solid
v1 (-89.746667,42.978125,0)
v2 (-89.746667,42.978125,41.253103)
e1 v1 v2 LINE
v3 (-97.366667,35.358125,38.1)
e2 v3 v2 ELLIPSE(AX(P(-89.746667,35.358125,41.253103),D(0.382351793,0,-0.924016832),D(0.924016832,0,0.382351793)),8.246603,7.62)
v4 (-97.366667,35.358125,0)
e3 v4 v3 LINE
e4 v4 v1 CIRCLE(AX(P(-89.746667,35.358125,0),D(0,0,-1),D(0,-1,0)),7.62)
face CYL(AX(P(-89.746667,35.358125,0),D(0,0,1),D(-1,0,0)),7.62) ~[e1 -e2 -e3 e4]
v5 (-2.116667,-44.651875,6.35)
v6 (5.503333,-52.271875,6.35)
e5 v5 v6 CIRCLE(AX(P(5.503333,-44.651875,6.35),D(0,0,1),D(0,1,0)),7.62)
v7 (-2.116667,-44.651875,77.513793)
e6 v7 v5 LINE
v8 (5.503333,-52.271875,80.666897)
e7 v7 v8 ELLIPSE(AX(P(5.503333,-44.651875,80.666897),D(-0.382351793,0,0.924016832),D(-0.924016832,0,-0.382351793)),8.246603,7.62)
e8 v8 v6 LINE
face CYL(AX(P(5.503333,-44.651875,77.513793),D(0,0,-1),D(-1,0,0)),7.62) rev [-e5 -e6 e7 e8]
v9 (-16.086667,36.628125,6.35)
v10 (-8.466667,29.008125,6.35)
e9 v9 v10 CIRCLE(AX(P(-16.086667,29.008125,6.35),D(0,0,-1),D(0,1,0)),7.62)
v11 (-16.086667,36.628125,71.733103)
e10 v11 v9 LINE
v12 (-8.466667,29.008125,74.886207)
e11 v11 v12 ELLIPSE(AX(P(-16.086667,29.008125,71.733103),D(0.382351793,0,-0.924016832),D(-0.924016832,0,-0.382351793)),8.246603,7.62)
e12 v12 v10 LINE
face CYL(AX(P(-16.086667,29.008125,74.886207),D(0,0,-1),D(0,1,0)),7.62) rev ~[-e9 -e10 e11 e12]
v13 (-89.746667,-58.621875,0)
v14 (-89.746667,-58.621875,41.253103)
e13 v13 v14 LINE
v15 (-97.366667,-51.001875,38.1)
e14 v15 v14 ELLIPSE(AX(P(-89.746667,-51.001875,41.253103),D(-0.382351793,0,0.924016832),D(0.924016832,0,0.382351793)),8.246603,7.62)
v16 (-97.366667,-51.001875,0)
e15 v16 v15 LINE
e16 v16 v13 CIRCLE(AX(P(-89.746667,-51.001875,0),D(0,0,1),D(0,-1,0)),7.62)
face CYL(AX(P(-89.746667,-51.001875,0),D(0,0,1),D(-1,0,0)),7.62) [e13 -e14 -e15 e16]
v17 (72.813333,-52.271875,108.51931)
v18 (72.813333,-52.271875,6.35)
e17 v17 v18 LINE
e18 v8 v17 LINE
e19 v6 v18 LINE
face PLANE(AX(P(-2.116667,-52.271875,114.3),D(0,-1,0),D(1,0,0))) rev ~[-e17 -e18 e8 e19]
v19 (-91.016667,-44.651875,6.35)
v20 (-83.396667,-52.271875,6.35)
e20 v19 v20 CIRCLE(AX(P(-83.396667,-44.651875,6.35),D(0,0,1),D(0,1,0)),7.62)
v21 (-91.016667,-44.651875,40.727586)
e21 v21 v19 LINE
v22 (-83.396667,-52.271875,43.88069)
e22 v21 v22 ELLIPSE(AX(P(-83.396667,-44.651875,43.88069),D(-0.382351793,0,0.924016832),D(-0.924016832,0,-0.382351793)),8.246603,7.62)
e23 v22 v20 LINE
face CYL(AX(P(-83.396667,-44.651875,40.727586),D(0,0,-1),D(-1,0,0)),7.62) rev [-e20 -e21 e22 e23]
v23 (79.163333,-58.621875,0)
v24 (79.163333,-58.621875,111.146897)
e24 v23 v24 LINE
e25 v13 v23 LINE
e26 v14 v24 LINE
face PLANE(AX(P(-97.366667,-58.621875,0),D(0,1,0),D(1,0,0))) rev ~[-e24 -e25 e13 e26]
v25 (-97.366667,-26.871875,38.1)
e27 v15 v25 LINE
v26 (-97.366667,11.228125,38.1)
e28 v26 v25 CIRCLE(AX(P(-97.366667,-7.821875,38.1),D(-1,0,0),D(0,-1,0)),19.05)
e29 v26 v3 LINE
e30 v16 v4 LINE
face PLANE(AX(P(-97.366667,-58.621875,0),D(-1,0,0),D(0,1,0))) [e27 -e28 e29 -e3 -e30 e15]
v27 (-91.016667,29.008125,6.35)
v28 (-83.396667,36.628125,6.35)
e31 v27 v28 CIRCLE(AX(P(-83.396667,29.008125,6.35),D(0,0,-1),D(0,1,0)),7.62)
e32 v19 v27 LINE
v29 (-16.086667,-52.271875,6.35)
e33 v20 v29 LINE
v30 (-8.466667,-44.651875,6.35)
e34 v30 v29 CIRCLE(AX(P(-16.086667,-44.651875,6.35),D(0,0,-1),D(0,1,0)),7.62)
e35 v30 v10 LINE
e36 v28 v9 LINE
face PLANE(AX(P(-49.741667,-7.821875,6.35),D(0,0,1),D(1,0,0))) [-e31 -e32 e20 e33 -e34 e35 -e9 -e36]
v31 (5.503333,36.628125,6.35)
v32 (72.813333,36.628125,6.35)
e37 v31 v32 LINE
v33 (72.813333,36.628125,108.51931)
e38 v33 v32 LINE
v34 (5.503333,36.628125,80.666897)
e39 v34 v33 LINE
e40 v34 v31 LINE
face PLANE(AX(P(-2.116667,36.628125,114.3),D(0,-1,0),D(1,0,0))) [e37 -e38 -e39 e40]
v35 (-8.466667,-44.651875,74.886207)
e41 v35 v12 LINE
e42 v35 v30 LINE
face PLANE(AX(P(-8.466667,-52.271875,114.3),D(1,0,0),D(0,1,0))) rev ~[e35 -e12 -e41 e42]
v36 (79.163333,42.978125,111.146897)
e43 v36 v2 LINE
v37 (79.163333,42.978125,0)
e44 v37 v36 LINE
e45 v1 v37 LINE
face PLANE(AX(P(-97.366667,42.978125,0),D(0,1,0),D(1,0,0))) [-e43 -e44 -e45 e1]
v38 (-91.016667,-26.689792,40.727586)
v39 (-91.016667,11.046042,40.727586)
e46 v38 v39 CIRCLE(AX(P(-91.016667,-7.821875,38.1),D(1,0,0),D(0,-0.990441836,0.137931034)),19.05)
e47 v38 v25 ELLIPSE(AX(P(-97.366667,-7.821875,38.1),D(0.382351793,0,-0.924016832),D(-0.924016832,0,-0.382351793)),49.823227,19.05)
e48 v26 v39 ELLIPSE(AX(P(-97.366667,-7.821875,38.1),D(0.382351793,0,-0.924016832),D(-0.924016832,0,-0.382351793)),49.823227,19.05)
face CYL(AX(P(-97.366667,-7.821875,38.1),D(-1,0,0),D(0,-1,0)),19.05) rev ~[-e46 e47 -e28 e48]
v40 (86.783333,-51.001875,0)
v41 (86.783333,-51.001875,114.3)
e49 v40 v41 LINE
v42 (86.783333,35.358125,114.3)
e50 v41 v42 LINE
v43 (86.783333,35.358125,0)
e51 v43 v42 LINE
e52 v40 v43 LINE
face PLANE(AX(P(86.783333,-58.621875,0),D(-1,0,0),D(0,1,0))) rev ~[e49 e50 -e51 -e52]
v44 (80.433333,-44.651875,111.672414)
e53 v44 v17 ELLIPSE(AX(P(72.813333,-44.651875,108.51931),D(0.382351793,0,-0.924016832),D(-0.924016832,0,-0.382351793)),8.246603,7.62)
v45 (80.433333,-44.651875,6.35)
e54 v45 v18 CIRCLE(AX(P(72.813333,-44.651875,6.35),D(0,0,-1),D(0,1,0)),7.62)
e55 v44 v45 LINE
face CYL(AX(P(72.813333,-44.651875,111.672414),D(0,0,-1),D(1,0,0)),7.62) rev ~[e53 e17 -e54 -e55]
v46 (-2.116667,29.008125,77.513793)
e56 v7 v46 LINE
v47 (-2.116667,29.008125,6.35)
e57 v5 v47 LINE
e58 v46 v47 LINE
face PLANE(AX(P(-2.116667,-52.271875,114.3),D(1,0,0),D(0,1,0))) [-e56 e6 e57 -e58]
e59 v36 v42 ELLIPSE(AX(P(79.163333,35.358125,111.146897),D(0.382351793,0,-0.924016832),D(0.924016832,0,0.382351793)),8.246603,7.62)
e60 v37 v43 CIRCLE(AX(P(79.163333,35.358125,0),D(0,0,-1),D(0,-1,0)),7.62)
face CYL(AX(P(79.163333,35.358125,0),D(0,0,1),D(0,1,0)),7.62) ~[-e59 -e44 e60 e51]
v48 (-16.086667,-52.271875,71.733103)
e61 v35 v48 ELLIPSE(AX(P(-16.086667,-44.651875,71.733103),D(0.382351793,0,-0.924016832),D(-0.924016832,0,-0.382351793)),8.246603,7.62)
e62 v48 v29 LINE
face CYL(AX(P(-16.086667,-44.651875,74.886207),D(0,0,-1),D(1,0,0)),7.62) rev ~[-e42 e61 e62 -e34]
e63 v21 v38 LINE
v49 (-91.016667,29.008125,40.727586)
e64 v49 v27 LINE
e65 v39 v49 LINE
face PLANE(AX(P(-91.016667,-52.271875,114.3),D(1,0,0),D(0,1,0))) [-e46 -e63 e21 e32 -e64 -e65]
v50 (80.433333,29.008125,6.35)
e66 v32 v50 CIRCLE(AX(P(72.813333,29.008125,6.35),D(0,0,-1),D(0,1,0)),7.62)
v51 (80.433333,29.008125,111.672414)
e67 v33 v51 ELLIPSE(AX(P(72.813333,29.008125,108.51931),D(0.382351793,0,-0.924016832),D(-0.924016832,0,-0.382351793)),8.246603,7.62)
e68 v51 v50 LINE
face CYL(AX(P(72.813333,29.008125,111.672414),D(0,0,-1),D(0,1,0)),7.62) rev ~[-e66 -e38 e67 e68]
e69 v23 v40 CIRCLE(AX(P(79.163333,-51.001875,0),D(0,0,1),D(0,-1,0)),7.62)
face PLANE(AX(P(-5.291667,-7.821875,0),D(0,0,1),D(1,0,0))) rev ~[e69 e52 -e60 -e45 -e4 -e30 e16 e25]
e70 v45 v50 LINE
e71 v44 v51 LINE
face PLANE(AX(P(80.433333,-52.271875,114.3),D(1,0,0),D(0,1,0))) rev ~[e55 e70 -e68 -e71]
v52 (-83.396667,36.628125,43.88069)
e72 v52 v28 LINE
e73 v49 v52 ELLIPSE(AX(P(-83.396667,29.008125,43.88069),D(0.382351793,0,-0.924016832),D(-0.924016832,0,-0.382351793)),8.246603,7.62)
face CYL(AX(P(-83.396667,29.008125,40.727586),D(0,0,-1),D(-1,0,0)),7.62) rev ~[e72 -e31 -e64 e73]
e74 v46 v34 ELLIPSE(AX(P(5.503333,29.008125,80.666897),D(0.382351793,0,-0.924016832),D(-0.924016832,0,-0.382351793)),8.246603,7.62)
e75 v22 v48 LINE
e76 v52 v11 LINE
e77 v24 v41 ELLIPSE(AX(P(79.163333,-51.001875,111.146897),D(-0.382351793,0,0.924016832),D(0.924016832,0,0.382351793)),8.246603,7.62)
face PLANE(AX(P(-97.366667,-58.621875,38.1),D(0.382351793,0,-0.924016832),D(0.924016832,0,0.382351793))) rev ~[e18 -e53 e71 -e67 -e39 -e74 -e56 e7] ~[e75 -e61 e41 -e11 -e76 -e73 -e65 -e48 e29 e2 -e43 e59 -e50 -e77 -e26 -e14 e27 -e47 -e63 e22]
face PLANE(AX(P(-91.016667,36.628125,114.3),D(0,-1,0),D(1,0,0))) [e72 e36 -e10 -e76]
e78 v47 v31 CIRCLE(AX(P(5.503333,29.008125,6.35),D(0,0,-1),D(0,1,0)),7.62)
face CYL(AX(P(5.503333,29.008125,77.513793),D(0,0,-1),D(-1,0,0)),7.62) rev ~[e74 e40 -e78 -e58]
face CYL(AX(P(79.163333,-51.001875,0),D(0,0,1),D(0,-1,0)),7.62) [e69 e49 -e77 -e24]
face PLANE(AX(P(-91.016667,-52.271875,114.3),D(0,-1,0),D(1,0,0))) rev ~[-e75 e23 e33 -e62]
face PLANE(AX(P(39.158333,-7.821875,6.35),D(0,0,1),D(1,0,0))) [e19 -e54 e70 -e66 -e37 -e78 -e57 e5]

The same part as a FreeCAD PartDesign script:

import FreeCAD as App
import Part
import Sketcher

V = App.Vector
Q = App.Units.Quantity


def edges_at(feature, points):
    """Names of the edges that pass closest to the given points."""
    edges = feature.Shape.Edges
    near = lambda p: min(range(len(edges)), key=lambda i: edges[i].distToShape(Part.Vertex(*p))[0])
    return sorted({f"Edge{near(p) + 1}" for p in points})

doc = App.newDocument("Part")
body = doc.addObject("PartDesign::Body", "Body")

# Sketch on XY plane
sketch1 = body.newObject("Sketcher::SketchObject", "Sketch")
sketch1.AttachmentSupport = (doc.getObject("XY_Plane"), [""])
sketch1.MapMode = "FlatFace"
sketch1.addGeometry(Part.LineSegment(V(-97, 43, 0), V(-97, -59, 0)), False)
sketch1.addGeometry(Part.LineSegment(V(-97, -59, 0), V(87, -59, 0)), False)
sketch1.addGeometry(Part.LineSegment(V(87, -59, 0), V(87, 43, 0)), False)
sketch1.addGeometry(Part.LineSegment(V(87, 43, 0), V(-97, 43, 0)), False)
sketch1.addConstraint(Sketcher.Constraint("Coincident", 0, 2, 1, 1))
sketch1.addConstraint(Sketcher.Constraint("Coincident", 1, 2, 2, 1))
sketch1.addConstraint(Sketcher.Constraint("Coincident", 2, 2, 3, 1))
sketch1.addConstraint(Sketcher.Constraint("Coincident", 3, 2, 0, 1))
sketch1.addConstraint(Sketcher.Constraint("Vertical", 0))
sketch1.addConstraint(Sketcher.Constraint("Horizontal", 1))
sketch1.addConstraint(Sketcher.Constraint("Vertical", 2))
sketch1.addConstraint(Sketcher.Constraint("Horizontal", 3))
sketch1.addConstraint(Sketcher.Constraint("DistanceY", 0, 2, 0, 1, Q("4 in")))
sketch1.addConstraint(Sketcher.Constraint("DistanceX", 1, 1, 1, 2, Q("7.25 in")))
sketch1.addConstraint(Sketcher.Constraint("DistanceX", 0, 2, -1, 1, Q("97.366667 mm")))
sketch1.addConstraint(Sketcher.Constraint("DistanceY", 0, 2, -1, 1, Q("58.621875 mm")))
pad1 = body.newObject("PartDesign::Pad", "Pad")
pad1.Profile = sketch1
pad1.Length = Q("4.5 in")

# Sketch on XY plane
sketch2 = body.newObject("Sketcher::SketchObject", "Sketch001")
sketch2.AttachmentSupport = (doc.getObject("XY_Plane"), [""])
sketch2.MapMode = "FlatFace"
sketch2.AttachmentOffset = App.Placement(V(0, 0, 4.5 * 25.4), App.Rotation())
sketch2.addGeometry(Part.LineSegment(V(-91, 37, 0), V(-91, -52, 0)), False)
sketch2.addGeometry(Part.LineSegment(V(-91, -52, 0), V(-8, -52, 0)), False)
sketch2.addGeometry(Part.LineSegment(V(-8, -52, 0), V(-8, 37, 0)), False)
sketch2.addGeometry(Part.LineSegment(V(-8, 37, 0), V(-91, 37, 0)), False)
sketch2.addGeometry(Part.LineSegment(V(-2, 37, 0), V(-2, -52, 0)), False)
sketch2.addGeometry(Part.LineSegment(V(-2, -52, 0), V(80, -52, 0)), False)
sketch2.addGeometry(Part.LineSegment(V(80, -52, 0), V(80, 37, 0)), False)
sketch2.addGeometry(Part.LineSegment(V(80, 37, 0), V(-2, 37, 0)), False)
sketch2.addConstraint(Sketcher.Constraint("Coincident", 0, 2, 1, 1))
sketch2.addConstraint(Sketcher.Constraint("Coincident", 1, 2, 2, 1))
sketch2.addConstraint(Sketcher.Constraint("Coincident", 2, 2, 3, 1))
sketch2.addConstraint(Sketcher.Constraint("Coincident", 3, 2, 0, 1))
sketch2.addConstraint(Sketcher.Constraint("Coincident", 4, 2, 5, 1))
sketch2.addConstraint(Sketcher.Constraint("Coincident", 5, 2, 6, 1))
sketch2.addConstraint(Sketcher.Constraint("Coincident", 6, 2, 7, 1))
sketch2.addConstraint(Sketcher.Constraint("Coincident", 7, 2, 4, 1))
sketch2.addConstraint(Sketcher.Constraint("Vertical", 0))
sketch2.addConstraint(Sketcher.Constraint("Horizontal", 1))
sketch2.addConstraint(Sketcher.Constraint("Vertical", 2))
sketch2.addConstraint(Sketcher.Constraint("Horizontal", 3))
sketch2.addConstraint(Sketcher.Constraint("Vertical", 4))
sketch2.addConstraint(Sketcher.Constraint("Horizontal", 5))
sketch2.addConstraint(Sketcher.Constraint("Vertical", 6))
sketch2.addConstraint(Sketcher.Constraint("Horizontal", 7))
sketch2.addConstraint(Sketcher.Constraint("Horizontal", 1, 2, 4, 2))
sketch2.addConstraint(Sketcher.Constraint("Horizontal", 3, 2, 6, 2))
sketch2.addConstraint(Sketcher.Constraint("Equal", 3, 5))
sketch2.addConstraint(Sketcher.Constraint("DistanceY", 0, 2, 0, 1, Q("3.5 in")))
sketch2.addConstraint(Sketcher.Constraint("DistanceX", 1, 1, 1, 2, Q("3.25 in")))
sketch2.addConstraint(Sketcher.Constraint("DistanceX", 0, 2, 4, 2, Q("3.5 in")))
sketch2.addConstraint(Sketcher.Constraint("DistanceX", 0, 2, -1, 1, Q("91.016667 mm")))
sketch2.addConstraint(Sketcher.Constraint("DistanceY", 0, 2, -1, 1, Q("52.271875 mm")))
pocket1 = body.newObject("PartDesign::Pocket", "Pocket")
pocket1.Profile = sketch2
pocket1.Length = Q("4.25 in")

# Sketch on XZ plane
sketch3 = body.newObject("Sketcher::SketchObject", "Sketch002")
sketch3.AttachmentSupport = (doc.getObject("XZ_Plane"), [""])
sketch3.MapMode = "FlatFace"
sketch3.AttachmentOffset = App.Placement(V(0, 0, 58.621875), App.Rotation())
sketch3.addGeometry(Part.LineSegment(V(-97, 114, 0), V(-97, 38, 0)), False)
sketch3.addGeometry(Part.LineSegment(V(-97, 38, 0), V(87, 114, 0)), False)
sketch3.addGeometry(Part.LineSegment(V(87, 114, 0), V(-97, 114, 0)), False)
sketch3.addConstraint(Sketcher.Constraint("Coincident", 0, 2, 1, 1))
sketch3.addConstraint(Sketcher.Constraint("Coincident", 1, 2, 2, 1))
sketch3.addConstraint(Sketcher.Constraint("Coincident", 2, 2, 0, 1))
sketch3.addConstraint(Sketcher.Constraint("Vertical", 0))
sketch3.addConstraint(Sketcher.Constraint("Horizontal", 2))
sketch3.addConstraint(Sketcher.Constraint("DistanceY", 0, 2, 0, 1, Q("3 in")))
sketch3.addConstraint(Sketcher.Constraint("DistanceX", 2, 2, 2, 1, Q("7.25 in")))
sketch3.addConstraint(Sketcher.Constraint("DistanceY", -1, 1, 0, 2, Q("1.5 in")))
sketch3.addConstraint(Sketcher.Constraint("DistanceX", 0, 2, -1, 1, Q("97.366667 mm")))
pocket2 = body.newObject("PartDesign::Pocket", "Pocket001")
pocket2.Profile = sketch3
pocket2.Type = "ThroughAll"
doc.recompute()

fillet = body.newObject("PartDesign::Fillet", "Fillet")
fillet.Base = (pocket2, edges_at(pocket2, [
    (80.433, 36.628, 59.011),
    (-8.467, 36.628, 40.618),
    (-97.367, 42.978, 19.05),
    (-97.367, -58.622, 19.05),
    (86.783, -58.622, 57.15),
    (80.433, -52.272, 59.011),
    (-8.467, -52.272, 40.618),
    (86.783, 42.978, 57.15),
    (-2.117, -52.272, 41.932),
    (-91.017, -52.272, 23.539),
    (-2.117, 36.628, 41.932),
    (-91.017, 36.628, 23.539),
]))
fillet.Radius = Q("0.3 in")

# Sketch on YZ plane
sketch4 = body.newObject("Sketcher::SketchObject", "Sketch003")
sketch4.AttachmentSupport = (doc.getObject("YZ_Plane"), [""])
sketch4.MapMode = "FlatFace"
sketch4.AttachmentOffset = App.Placement(V(0, 0, -97.366667), App.Rotation())
sketch4.addGeometry(Part.Circle(V(-8, 38, 0), V(0, 0, 1), 19), False)
sketch4.addConstraint(Sketcher.Constraint("Diameter", 0, Q("1.5 in")))
sketch4.addConstraint(Sketcher.Constraint("DistanceY", -1, 1, 0, 3, Q("1.5 in")))
sketch4.addConstraint(Sketcher.Constraint("DistanceX", 0, 3, -1, 1, Q("7.821875 mm")))
pocket3 = body.newObject("PartDesign::Pocket", "Pocket002")
pocket3.Profile = sketch4
pocket3.Length = Q("1 in")
pocket3.Reversed = True

doc.recompute()
